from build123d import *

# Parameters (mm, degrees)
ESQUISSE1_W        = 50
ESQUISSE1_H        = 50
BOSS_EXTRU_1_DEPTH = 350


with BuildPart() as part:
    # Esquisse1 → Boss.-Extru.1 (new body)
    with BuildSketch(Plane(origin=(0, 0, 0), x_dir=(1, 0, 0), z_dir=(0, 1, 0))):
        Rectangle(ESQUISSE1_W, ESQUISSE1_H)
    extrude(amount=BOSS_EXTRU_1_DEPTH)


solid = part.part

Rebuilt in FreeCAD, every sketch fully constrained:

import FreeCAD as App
import Part
import Sketcher

V = App.Vector
Q = App.Units.Quantity


def add_polygon(sketch, points):
    """Adds a closed chain of lines whose ends are joined by coincident constraints."""
    first, n = sketch.GeometryCount, len(points)
    for a, b in zip(points, points[1:] + points[:1]):
        sketch.addGeometry(Part.LineSegment(App.Vector(*a, 0), App.Vector(*b, 0)), False)
    for i in range(n):
        sketch.addConstraint(Sketcher.Constraint("Coincident", first + i, 2, first + (i + 1) % n, 1))

doc = App.newDocument("Part")
body = doc.addObject("PartDesign::Body", "Body")

sketch1 = doc.addObject("Sketcher::SketchObject", "Sketch")
body.addObject(sketch1)
sketch1.AttachmentSupport = (doc.XZ_Plane, [""])
sketch1.MapMode = "FlatFace"
add_polygon(sketch1, [(-25, -25), (-25, 25), (25, 25), (25, -25)])
sketch1.addConstraint([
    Sketcher.Constraint("Vertical", 0),
    Sketcher.Constraint("Horizontal", 1),
    Sketcher.Constraint("Vertical", 2),
    Sketcher.Constraint("Horizontal", 3),
    Sketcher.Constraint("Symmetric", 0, 2, 2, 2, -1, 1),
    Sketcher.Constraint("Equal", 3, 0),
    Sketcher.Constraint("DistanceX", 1, 1, 1, 2, Q("50 mm")),
])
pad1 = doc.addObject("PartDesign::Pad", "Pad")
body.addObject(pad1)
pad1.Profile = sketch1
pad1.Length = 350
pad1.Reversed = True

doc.recompute()
